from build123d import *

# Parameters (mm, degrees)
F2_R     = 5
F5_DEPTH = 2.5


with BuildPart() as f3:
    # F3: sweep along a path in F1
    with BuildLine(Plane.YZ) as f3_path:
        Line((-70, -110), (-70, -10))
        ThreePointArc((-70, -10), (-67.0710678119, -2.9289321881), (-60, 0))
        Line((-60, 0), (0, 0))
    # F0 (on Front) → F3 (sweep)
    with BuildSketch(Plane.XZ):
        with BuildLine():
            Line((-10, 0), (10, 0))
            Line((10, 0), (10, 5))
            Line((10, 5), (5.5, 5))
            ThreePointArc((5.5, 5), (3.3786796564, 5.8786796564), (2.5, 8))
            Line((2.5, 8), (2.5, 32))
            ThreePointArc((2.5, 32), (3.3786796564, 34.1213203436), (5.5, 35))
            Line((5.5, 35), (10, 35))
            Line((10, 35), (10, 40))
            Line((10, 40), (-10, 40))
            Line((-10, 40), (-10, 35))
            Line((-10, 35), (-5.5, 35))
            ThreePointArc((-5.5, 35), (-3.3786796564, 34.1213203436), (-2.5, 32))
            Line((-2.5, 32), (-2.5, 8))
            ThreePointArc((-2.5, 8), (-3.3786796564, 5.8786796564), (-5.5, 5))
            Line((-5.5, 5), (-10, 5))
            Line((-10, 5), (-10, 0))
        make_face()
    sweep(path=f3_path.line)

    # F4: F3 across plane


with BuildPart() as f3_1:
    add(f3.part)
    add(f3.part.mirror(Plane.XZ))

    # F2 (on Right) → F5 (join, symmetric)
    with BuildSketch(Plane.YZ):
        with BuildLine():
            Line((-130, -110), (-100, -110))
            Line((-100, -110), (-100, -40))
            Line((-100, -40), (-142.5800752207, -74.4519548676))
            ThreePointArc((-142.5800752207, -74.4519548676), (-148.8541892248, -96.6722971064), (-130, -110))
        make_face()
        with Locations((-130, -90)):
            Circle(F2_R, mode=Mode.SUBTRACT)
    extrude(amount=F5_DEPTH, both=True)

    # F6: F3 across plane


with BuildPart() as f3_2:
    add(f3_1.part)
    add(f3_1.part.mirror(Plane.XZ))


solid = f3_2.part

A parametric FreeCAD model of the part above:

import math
import FreeCAD as App
import Part
import Sketcher

V = App.Vector
Q = App.Units.Quantity

doc = App.newDocument("Part")
params = doc.addObject("Spreadsheet::Sheet", "Params")
for row, (alias, value) in enumerate([
    ("sketch1_radius", "3 mm"),
    ("sketch1_width", "20 mm"),
    ("sketch1_height", "5 mm"),
    ("sketch1_height2", "24 mm"),
    ("sketch1_width2", "4.5 mm"),
    ("sketch2_radius", "10 mm"),
    ("sketch2_width", "60 mm"),
    ("sketch2_height", "100 mm"),
    ("sketch3_diameter", "10 mm"),
    ("sketch3_radius", "20 mm"),
    ("sketch3_width", "30 mm"),
    ("sketch3_height", "70 mm"),
    ("pad1_length", "5 mm"),
], start=1):
    params.set(f"A{row}", alias)
    params.set(f"B{row}", "=" + value)
    params.setAlias(f"B{row}", alias)

body = doc.addObject("PartDesign::Body", "Body")

# Sketch on XZ plane
sketch1 = doc.addObject("Sketcher::SketchObject", "Sketch")
body.addObject(sketch1)
sketch1.AttachmentSupport = (doc.XZ_Plane, [""])
sketch1.MapMode = "FlatFace"
sketch1.addGeometry(Part.LineSegment(V(-10, 0, 0), V(10, 0, 0)), False)
sketch1.addGeometry(Part.LineSegment(V(10, 0, 0), V(10, 5, 0)), False)
sketch1.addGeometry(Part.LineSegment(V(10, 5, 0), V(5.5, 5, 0)), False)
sketch1.addGeometry(Part.ArcOfCircle(Part.Circle(V(5.5, 8, 0), V(0, 0, 1), 3), math.radians(180), math.radians(270)), False)
sketch1.addGeometry(Part.LineSegment(V(2.5, 8, 0), V(2.5, 32, 0)), False)
sketch1.addGeometry(Part.ArcOfCircle(Part.Circle(V(5.5, 32, 0), V(0, 0, 1), 3), math.radians(90), math.radians(180)), False)
sketch1.addGeometry(Part.LineSegment(V(5.5, 35, 0), V(10, 35, 0)), False)
sketch1.addGeometry(Part.LineSegment(V(10, 35, 0), V(10, 40, 0)), False)
sketch1.addGeometry(Part.LineSegment(V(10, 40, 0), V(-10, 40, 0)), False)
sketch1.addGeometry(Part.LineSegment(V(-10, 40, 0), V(-10, 35, 0)), False)
sketch1.addGeometry(Part.LineSegment(V(-10, 35, 0), V(-5.5, 35, 0)), False)
sketch1.addGeometry(Part.ArcOfCircle(Part.Circle(V(-5.5, 32, 0), V(0, 0, 1), 3), math.radians(0), math.radians(90)), False)
sketch1.addGeometry(Part.LineSegment(V(-2.5, 32, 0), V(-2.5, 8, 0)), False)
sketch1.addGeometry(Part.ArcOfCircle(Part.Circle(V(-5.5, 8, 0), V(0, 0, 1), 3), math.radians(-90), math.radians(0)), False)
sketch1.addGeometry(Part.LineSegment(V(-5.5, 5, 0), V(-10, 5, 0)), False)
sketch1.addGeometry(Part.LineSegment(V(-10, 5, 0), V(-10, 0, 0)), False)
sketch1.addConstraint(Sketcher.Constraint("Coincident", 0, 2, 1, 1))
sketch1.addConstraint(Sketcher.Constraint("Coincident", 1, 2, 2, 1))
sketch1.addConstraint(Sketcher.Constraint("Tangent", 2, 2, 3, 2))
sketch1.addConstraint(Sketcher.Constraint("Tangent", 3, 1, 4, 1))
sketch1.addConstraint(Sketcher.Constraint("Tangent", 4, 2, 5, 2))
sketch1.addConstraint(Sketcher.Constraint("Tangent", 5, 1, 6, 1))
sketch1.addConstraint(Sketcher.Constraint("Coincident", 6, 2, 7, 1))
sketch1.addConstraint(Sketcher.Constraint("Coincident", 7, 2, 8, 1))
sketch1.addConstraint(Sketcher.Constraint("Coincident", 8, 2, 9, 1))
sketch1.addConstraint(Sketcher.Constraint("Coincident", 9, 2, 10, 1))
sketch1.addConstraint(Sketcher.Constraint("Tangent", 10, 2, 11, 2))
sketch1.addConstraint(Sketcher.Constraint("Tangent", 11, 1, 12, 1))
sketch1.addConstraint(Sketcher.Constraint("Tangent", 12, 2, 13, 2))
sketch1.addConstraint(Sketcher.Constraint("Tangent", 13, 1, 14, 1))
sketch1.addConstraint(Sketcher.Constraint("Coincident", 14, 2, 15, 1))
sketch1.addConstraint(Sketcher.Constraint("Coincident", 15, 2, 0, 1))
sketch1.addConstraint(Sketcher.Constraint("Horizontal", 0))
sketch1.addConstraint(Sketcher.Constraint("Vertical", 1))
sketch1.addConstraint(Sketcher.Constraint("Horizontal", 2))
sketch1.addConstraint(Sketcher.Constraint("Vertical", 4))
sketch1.addConstraint(Sketcher.Constraint("Horizontal", 6))
sketch1.addConstraint(Sketcher.Constraint("Vertical", 7))
sketch1.addConstraint(Sketcher.Constraint("Horizontal", 8))
sketch1.addConstraint(Sketcher.Constraint("Vertical", 9))
sketch1.addConstraint(Sketcher.Constraint("Horizontal", 10))
sketch1.addConstraint(Sketcher.Constraint("Vertical", 12))
sketch1.addConstraint(Sketcher.Constraint("Horizontal", 14))
sketch1.addConstraint(Sketcher.Constraint("Vertical", 15))
sketch1.addConstraint(Sketcher.Constraint("Equal", 3, 5))
sketch1.addConstraint(Sketcher.Constraint("Equal", 5, 11))
sketch1.addConstraint(Sketcher.Constraint("Equal", 11, 13))
sketch1.addConstraint(Sketcher.Constraint("Symmetric", 0, 2, 15, 2, -1, 1))
sketch1.addConstraint(Sketcher.Constraint("Symmetric", 5, 3, 11, 3, -2))
sketch1.addConstraint(Sketcher.Constraint("Horizontal", 3, 3, 13, 3))
sketch1.addConstraint(Sketcher.Constraint("Vertical", 1, 2, 6, 2))
sketch1.addConstraint(Sketcher.Constraint("Vertical", 9, 2, 14, 2))
sketch1.addConstraint(Sketcher.Constraint("Equal", 1, 7))
sketch1.addConstraint(Sketcher.Constraint("Radius", 3, Q("3 mm")))
sketch1.addConstraint(Sketcher.Constraint("DistanceX", 0, 1, 0, 2, Q("20 mm")))
sketch1.addConstraint(Sketcher.Constraint("DistanceY", 1, 1, 1, 2, Q("5 mm")))
sketch1.addConstraint(Sketcher.Constraint("DistanceY", 4, 1, 4, 2, Q("24 mm")))
sketch1.addConstraint(Sketcher.Constraint("DistanceX", 2, 2, 2, 1, Q("4.5 mm")))
sketch1.setExpression("Constraints[37]", "Params.sketch1_radius")
sketch1.setExpression("Constraints[38]", "Params.sketch1_width")
sketch1.setExpression("Constraints[39]", "Params.sketch1_height")
sketch1.setExpression("Constraints[40]", "Params.sketch1_height2")
sketch1.setExpression("Constraints[41]", "Params.sketch1_width2")

# Sketch on YZ plane
sketch2 = doc.addObject("Sketcher::SketchObject", "Sketch001")
body.addObject(sketch2)
sketch2.AttachmentSupport = (doc.YZ_Plane, [""])
sketch2.MapMode = "FlatFace"
sketch2.addGeometry(Part.LineSegment(V(-70, -110, 0), V(-70, -10, 0)), False)
sketch2.addGeometry(Part.ArcOfCircle(Part.Circle(V(-60, -10, 0), V(0, 0, 1), 10), math.radians(90), math.radians(180)), False)
sketch2.addGeometry(Part.LineSegment(V(-60, 0, 0), V(0, 0, 0)), False)
sketch2.addConstraint(Sketcher.Constraint("Tangent", 0, 2, 1, 2))
sketch2.addConstraint(Sketcher.Constraint("Tangent", 1, 1, 2, 1))
sketch2.addConstraint(Sketcher.Constraint("Vertical", 0))
sketch2.addConstraint(Sketcher.Constraint("Horizontal", 2))
sketch2.addConstraint(Sketcher.Constraint("Coincident", 2, 2, -1, 1))
sketch2.addConstraint(Sketcher.Constraint("Radius", 1, Q("10 mm")))
sketch2.addConstraint(Sketcher.Constraint("DistanceX", 2, 1, 2, 2, Q("60 mm")))
sketch2.addConstraint(Sketcher.Constraint("DistanceY", 0, 1, 0, 2, Q("100 mm")))
sketch2.setExpression("Constraints[5]", "Params.sketch2_radius")
sketch2.setExpression("Constraints[6]", "Params.sketch2_width")
sketch2.setExpression("Constraints[7]", "Params.sketch2_height")
doc.recompute()

additivepipe = doc.addObject("PartDesign::AdditivePipe", "AdditivePipe")
body.addObject(additivepipe)
additivepipe.Profile = sketch1
additivepipe.Spine = (sketch2, ["Edge1", "Edge2", "Edge3"])
body2 = doc.addObject("PartDesign::Body", "Body001")
doc.recompute()

body2.BaseFeature = body
doc.recompute()

mirroring = doc.addObject("Part::Mirroring", "Mirroring")
mirroring.Source = body
mirroring.Base = V(0, 0, 0)
mirroring.Normal = V(0, -1, 0)
body3 = doc.addObject("PartDesign::Body", "Body002")
body3.BaseFeature = mirroring
boolean = doc.addObject("PartDesign::Boolean", "Boolean")
body2.addObject(boolean)
boolean.Type = "Fuse"
boolean.addObjects([body3])
doc.recompute()

# Sketch on YZ plane
sketch3 = doc.addObject("Sketcher::SketchObject", "Sketch002")
body2.addObject(sketch3)
sketch3.AttachmentSupport = (doc.getObject("YZ_Plane001"), [""])
sketch3.MapMode = "FlatFace"
sketch3.addGeometry(Part.LineSegment(V(-130, -110, 0), V(-100, -110, 0)), False)
sketch3.addGeometry(Part.LineSegment(V(-100, -110, 0), V(-100, -40, 0)), False)
sketch3.addGeometry(Part.LineSegment(V(-100, -40, 0), V(-142.580075, -74.451955, 0)), False)
sketch3.addGeometry(Part.ArcOfCircle(Part.Circle(V(-130, -90, 0), V(0, 0, 1), 20), math.radians(128.97666), math.radians(270)), False)
sketch3.addGeometry(Part.Circle(V(-130, -90, 0), V(0, 0, 1), 5), False)
sketch3.addConstraint(Sketcher.Constraint("Coincident", 0, 2, 1, 1))
sketch3.addConstraint(Sketcher.Constraint("Coincident", 1, 2, 2, 1))
sketch3.addConstraint(Sketcher.Constraint("Tangent", 2, 2, 3, 1))
sketch3.addConstraint(Sketcher.Constraint("Tangent", 3, 2, 0, 1))
sketch3.addConstraint(Sketcher.Constraint("Horizontal", 0))
sketch3.addConstraint(Sketcher.Constraint("Vertical", 1))
sketch3.addConstraint(Sketcher.Constraint("Coincident", 4, 3, 3, 3))
sketch3.addConstraint(Sketcher.Constraint("Diameter", 4, Q("10 mm")))
sketch3.addConstraint(Sketcher.Constraint("Radius", 3, Q("20 mm")))
sketch3.addConstraint(Sketcher.Constraint("DistanceX", 0, 1, 0, 2, Q("30 mm")))
sketch3.addConstraint(Sketcher.Constraint("DistanceY", 1, 1, 1, 2, Q("70 mm")))
sketch3.addConstraint(Sketcher.Constraint("DistanceX", 3, 3, -1, 1, Q("130 mm")))
sketch3.addConstraint(Sketcher.Constraint("DistanceY", 3, 3, -1, 1, Q("90 mm")))
sketch3.setExpression("Constraints[7]", "Params.sketch3_diameter")
sketch3.setExpression("Constraints[8]", "Params.sketch3_radius")
sketch3.setExpression("Constraints[9]", "Params.sketch3_width")
sketch3.setExpression("Constraints[10]", "Params.sketch3_height")
pad1 = doc.addObject("PartDesign::Pad", "Pad")
body2.addObject(pad1)
pad1.Profile = sketch3
pad1.setExpression("Length", "Params.pad1_length")
pad1.Midplane = True
body4 = doc.addObject("PartDesign::Body", "Body003")
doc.recompute()

body4.BaseFeature = body2
doc.recompute()

mirroring2 = doc.addObject("Part::Mirroring", "Mirroring001")
mirroring2.Source = body2
mirroring2.Base = V(0, 0, 0)
mirroring2.Normal = V(0, -1, 0)
body5 = doc.addObject("PartDesign::Body", "Body004")
body5.BaseFeature = mirroring2
boolean2 = doc.addObject("PartDesign::Boolean", "Boolean001")
body4.addObject(boolean2)
boolean2.Type = "Fuse"
boolean2.addObjects([body5])
doc.recompute()

doc.recompute()
